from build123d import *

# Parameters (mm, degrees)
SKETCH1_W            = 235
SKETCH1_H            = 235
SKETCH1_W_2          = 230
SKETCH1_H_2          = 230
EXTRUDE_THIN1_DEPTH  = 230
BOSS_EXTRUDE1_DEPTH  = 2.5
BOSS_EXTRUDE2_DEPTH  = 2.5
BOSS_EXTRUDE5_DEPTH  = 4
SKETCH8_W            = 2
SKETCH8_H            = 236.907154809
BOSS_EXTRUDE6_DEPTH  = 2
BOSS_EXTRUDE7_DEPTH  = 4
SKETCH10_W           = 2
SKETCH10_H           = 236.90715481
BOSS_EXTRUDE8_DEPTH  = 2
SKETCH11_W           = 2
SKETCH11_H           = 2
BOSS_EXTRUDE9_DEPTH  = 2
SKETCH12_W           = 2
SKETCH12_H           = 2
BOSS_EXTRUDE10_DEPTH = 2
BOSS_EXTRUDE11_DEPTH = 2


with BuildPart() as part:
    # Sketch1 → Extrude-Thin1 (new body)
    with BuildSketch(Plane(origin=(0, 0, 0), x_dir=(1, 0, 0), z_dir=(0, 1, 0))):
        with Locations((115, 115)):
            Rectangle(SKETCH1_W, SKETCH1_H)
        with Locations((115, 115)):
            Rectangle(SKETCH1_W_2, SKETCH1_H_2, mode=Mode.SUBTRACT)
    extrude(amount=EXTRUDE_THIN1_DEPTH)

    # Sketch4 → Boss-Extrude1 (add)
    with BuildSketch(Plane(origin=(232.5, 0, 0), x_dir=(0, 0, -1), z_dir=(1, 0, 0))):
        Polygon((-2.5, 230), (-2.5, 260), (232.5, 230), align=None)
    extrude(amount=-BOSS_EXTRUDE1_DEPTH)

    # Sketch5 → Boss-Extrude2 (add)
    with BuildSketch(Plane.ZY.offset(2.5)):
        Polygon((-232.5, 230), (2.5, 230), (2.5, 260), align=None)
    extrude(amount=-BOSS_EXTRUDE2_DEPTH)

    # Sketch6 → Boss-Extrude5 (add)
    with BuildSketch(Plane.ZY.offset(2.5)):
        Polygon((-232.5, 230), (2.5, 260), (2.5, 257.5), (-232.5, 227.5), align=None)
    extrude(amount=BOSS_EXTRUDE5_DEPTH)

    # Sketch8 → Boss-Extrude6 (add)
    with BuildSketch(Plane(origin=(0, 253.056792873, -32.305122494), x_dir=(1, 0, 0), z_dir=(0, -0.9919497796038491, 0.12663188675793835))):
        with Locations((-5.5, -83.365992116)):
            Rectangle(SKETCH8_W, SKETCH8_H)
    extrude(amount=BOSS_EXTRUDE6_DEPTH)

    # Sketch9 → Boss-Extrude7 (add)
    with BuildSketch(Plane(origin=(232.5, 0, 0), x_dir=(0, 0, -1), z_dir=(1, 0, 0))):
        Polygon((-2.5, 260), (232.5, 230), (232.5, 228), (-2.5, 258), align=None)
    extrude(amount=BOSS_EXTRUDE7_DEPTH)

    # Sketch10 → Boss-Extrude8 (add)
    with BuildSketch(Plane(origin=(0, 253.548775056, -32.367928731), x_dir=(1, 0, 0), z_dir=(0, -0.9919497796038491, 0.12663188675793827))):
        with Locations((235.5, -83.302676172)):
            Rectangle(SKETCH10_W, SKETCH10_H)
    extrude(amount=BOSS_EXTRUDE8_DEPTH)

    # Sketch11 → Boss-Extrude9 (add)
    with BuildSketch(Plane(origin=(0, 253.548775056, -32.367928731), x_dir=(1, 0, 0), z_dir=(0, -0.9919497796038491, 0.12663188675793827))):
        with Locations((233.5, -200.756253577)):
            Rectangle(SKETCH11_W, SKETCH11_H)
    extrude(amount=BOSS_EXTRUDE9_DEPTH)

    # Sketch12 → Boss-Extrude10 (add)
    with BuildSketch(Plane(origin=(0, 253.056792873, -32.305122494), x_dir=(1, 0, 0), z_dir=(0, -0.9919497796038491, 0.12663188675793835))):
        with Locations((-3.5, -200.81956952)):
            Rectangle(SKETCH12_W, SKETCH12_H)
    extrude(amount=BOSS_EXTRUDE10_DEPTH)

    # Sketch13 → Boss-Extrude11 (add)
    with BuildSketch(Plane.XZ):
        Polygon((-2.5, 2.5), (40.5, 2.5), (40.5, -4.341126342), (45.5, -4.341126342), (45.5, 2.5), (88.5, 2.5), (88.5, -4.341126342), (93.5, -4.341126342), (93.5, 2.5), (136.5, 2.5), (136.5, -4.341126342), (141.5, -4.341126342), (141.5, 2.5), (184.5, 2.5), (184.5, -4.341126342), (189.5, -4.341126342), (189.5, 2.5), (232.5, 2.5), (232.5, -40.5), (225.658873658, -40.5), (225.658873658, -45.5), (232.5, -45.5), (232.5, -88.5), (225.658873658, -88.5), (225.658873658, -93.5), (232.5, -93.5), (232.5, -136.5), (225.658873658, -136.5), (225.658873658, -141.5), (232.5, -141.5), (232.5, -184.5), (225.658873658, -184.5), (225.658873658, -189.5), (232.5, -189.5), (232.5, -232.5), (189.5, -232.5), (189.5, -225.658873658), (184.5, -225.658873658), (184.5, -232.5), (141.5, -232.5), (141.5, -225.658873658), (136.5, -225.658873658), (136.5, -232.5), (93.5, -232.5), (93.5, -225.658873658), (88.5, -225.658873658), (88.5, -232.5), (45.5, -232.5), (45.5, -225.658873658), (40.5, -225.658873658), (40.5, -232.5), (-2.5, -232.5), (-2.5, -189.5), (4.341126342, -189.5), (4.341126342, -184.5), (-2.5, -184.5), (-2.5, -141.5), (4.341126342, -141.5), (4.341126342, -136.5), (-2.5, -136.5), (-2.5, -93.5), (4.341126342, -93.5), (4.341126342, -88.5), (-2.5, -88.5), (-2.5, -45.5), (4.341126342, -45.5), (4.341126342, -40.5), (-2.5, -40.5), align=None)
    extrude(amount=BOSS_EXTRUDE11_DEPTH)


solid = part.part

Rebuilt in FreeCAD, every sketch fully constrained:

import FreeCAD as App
import Part
import Sketcher
from FreeCAD import Vector


def add_polygon(sketch, points):
    """Adds a closed chain of lines whose ends are joined by coincident constraints."""
    first, n = sketch.GeometryCount, len(points)
    for a, b in zip(points, points[1:] + points[:1]):
        sketch.addGeometry(Part.LineSegment(App.Vector(*a, 0), App.Vector(*b, 0)), False)
    for i in range(n):
        sketch.addConstraint(Sketcher.Constraint("Coincident", first + i, 2, first + (i + 1) % n, 1))

doc = App.newDocument("Part")
body = doc.addObject("PartDesign::Body", "Body")

# Sketch on XZ plane
sketch1 = body.newObject("Sketcher::SketchObject", "Sketch")
sketch1.AttachmentSupport = (doc.getObject("XZ_Plane"), [""])
sketch1.MapMode = "FlatFace"
add_polygon(sketch1, [(-2, -232), (-2, 2), (232, 2), (232, -232)])  # lines 0-3
add_polygon(sketch1, [(230, 0), (0, 0), (0, -230), (230, -230)])  # lines 4-7
sketch1.addConstraint(Sketcher.Constraint("Vertical", 0))
sketch1.addConstraint(Sketcher.Constraint("Horizontal", 1))
sketch1.addConstraint(Sketcher.Constraint("Vertical", 2))
sketch1.addConstraint(Sketcher.Constraint("Horizontal", 3))
sketch1.addConstraint(Sketcher.Constraint("Horizontal", 4))
sketch1.addConstraint(Sketcher.Constraint("Vertical", 5))
sketch1.addConstraint(Sketcher.Constraint("Horizontal", 6))
sketch1.addConstraint(Sketcher.Constraint("Vertical", 7))
sketch1.addConstraint(Sketcher.Constraint("Coincident", 4, 2, -1, 1))
sketch1.addConstraint(Sketcher.Constraint("Equal", 3, 0))
sketch1.addConstraint(Sketcher.Constraint("Equal", 6, 5))
sketch1.addConstraint(Sketcher.Constraint("DistanceX", 1, 1, 1, 2, 235.0))
sketch1.addConstraint(Sketcher.Constraint("DistanceX", 4, 2, 4, 1, 230.0))
sketch1.addConstraint(Sketcher.Constraint("DistanceX", 0, 2, -1, 1, 2.5))
sketch1.addConstraint(Sketcher.Constraint("DistanceY", -1, 1, 0, 2, 2.5))
pad1 = body.newObject("PartDesign::Pad", "Pad")
pad1.Profile = sketch1
pad1.Length = 230
pad1.Reversed = True

# Sketch on YZ plane
sketch2 = body.newObject("Sketcher::SketchObject", "Sketch001")
sketch2.AttachmentSupport = (doc.getObject("YZ_Plane"), [""])
sketch2.MapMode = "FlatFace"
sketch2.AttachmentOffset = App.Placement(Vector(0, 0, 232.5), App.Rotation())
add_polygon(sketch2, [(260, 2), (230, 2), (230, -232)])  # lines 0-2
sketch2.addConstraint(Sketcher.Constraint("Horizontal", 0))
sketch2.addConstraint(Sketcher.Constraint("Vertical", 1))
sketch2.addConstraint(Sketcher.Constraint("DistanceX", 0, 2, 0, 1, 30.0))
sketch2.addConstraint(Sketcher.Constraint("DistanceY", 1, 2, 1, 1, 235.0))
sketch2.addConstraint(Sketcher.Constraint("DistanceX", -1, 1, 0, 2, 230.0))
sketch2.addConstraint(Sketcher.Constraint("DistanceY", -1, 1, 0, 2, 2.5))
pad2 = body.newObject("PartDesign::Pad", "Pad001")
pad2.Profile = sketch2
pad2.Length = 2.5
pad2.Reversed = True

# Sketch on YZ plane
sketch3 = body.newObject("Sketcher::SketchObject", "Sketch002")
sketch3.AttachmentSupport = (doc.getObject("YZ_Plane"), [""])
sketch3.MapMode = "FlatFace"
sketch3.AttachmentOffset = App.Placement(Vector(0, 0, -2.5), App.Rotation())
add_polygon(sketch3, [(230, -232), (230, 2), (260, 2)])  # lines 0-2
sketch3.addConstraint(Sketcher.Constraint("Vertical", 0))
sketch3.addConstraint(Sketcher.Constraint("Horizontal", 1))
sketch3.addConstraint(Sketcher.Constraint("DistanceX", 1, 1, 1, 2, 30.0))
sketch3.addConstraint(Sketcher.Constraint("DistanceY", 0, 1, 0, 2, 235.0))
sketch3.addConstraint(Sketcher.Constraint("DistanceX", -1, 1, 0, 2, 230.0))
sketch3.addConstraint(Sketcher.Constraint("DistanceY", -1, 1, 0, 2, 2.5))
pad3 = body.newObject("PartDesign::Pad", "Pad002")
pad3.Profile = sketch3
pad3.Length = 2.5

# Sketch on YZ plane
sketch4 = body.newObject("Sketcher::SketchObject", "Sketch003")
sketch4.AttachmentSupport = (doc.getObject("YZ_Plane"), [""])
sketch4.MapMode = "FlatFace"
sketch4.AttachmentOffset = App.Placement(Vector(0, 0, -2.5), App.Rotation())
add_polygon(sketch4, [(260, 2.5), (230, -232.5), (227.5, -232.5), (257.5, 2.5)])  # lines 0-3
sketch4.addConstraint(Sketcher.Constraint("Horizontal", 1))
sketch4.addConstraint(Sketcher.Constraint("Horizontal", 3))
sketch4.addConstraint(Sketcher.Constraint("Parallel", 0, 2))
sketch4.addConstraint(Sketcher.Constraint("DistanceX", 1, 2, 1, 1, 2.5))
sketch4.addConstraint(Sketcher.Constraint("DistanceX", -1, 1, 0, 2, 230.0))
sketch4.addConstraint(Sketcher.Constraint("DistanceX", -1, 1, 3, 2, 260.0))
sketch4.addConstraint(Sketcher.Constraint("DistanceY", 0, 2, 2, 2, 235.0))
sketch4.addConstraint(Sketcher.Constraint("DistanceY", 0, 2, -1, 1, 232.5))
pad4 = body.newObject("PartDesign::Pad", "Pad003")
pad4.Profile = sketch4
pad4.Length = 4
pad4.Reversed = True

# Sketch on an angled plane
sketch5 = body.newObject("Sketcher::SketchObject", "Sketch004")
sketch5.Placement = App.Placement(Vector(0, 253.056793, -32.305122), App.Rotation(Vector(1, 0, 0), Vector(0, 0.126631887, 0.99194978), Vector(0, -0.99194978, 0.126631887), "ZXY"))
add_polygon(sketch5, [(-6.5, 35.1), (-6.5, -201.8), (-4.5, -201.8), (-4.5, 35.1)])  # lines 0-3
sketch5.addConstraint(Sketcher.Constraint("Vertical", 0))
sketch5.addConstraint(Sketcher.Constraint("Horizontal", 1))
sketch5.addConstraint(Sketcher.Constraint("Vertical", 2))
sketch5.addConstraint(Sketcher.Constraint("Horizontal", 3))
sketch5.addConstraint(Sketcher.Constraint("DistanceX", 1, 1, 1, 2, 2.0))
sketch5.addConstraint(Sketcher.Constraint("DistanceX", 0, 2, -1, 1, 6.5))
sketch5.addConstraint(Sketcher.Constraint("DistanceY", 0, 2, 0, 1, 236.907155))
sketch5.addConstraint(Sketcher.Constraint("DistanceY", 0, 2, -1, 1, 201.81957))
pad5 = body.newObject("PartDesign::Pad", "Pad004")
pad5.Profile = sketch5
pad5.Length = 2

# Sketch on YZ plane
sketch6 = body.newObject("Sketcher::SketchObject", "Sketch005")
sketch6.AttachmentSupport = (doc.getObject("YZ_Plane"), [""])
sketch6.MapMode = "FlatFace"
sketch6.AttachmentOffset = App.Placement(Vector(0, 0, 232.5), App.Rotation())
add_polygon(sketch6, [(230, -232.5), (260, 2.5), (258, 2.5), (228, -232.5)])  # lines 0-3
sketch6.addConstraint(Sketcher.Constraint("Horizontal", 1))
sketch6.addConstraint(Sketcher.Constraint("Horizontal", 3))
sketch6.addConstraint(Sketcher.Constraint("Parallel", 0, 2))
sketch6.addConstraint(Sketcher.Constraint("DistanceX", 1, 2, 1, 1, 2.0))
sketch6.addConstraint(Sketcher.Constraint("DistanceX", -1, 1, 0, 2, 260.0))
sketch6.addConstraint(Sketcher.Constraint("DistanceX", -1, 1, 2, 2, 228.0))
sketch6.addConstraint(Sketcher.Constraint("DistanceY", 2, 2, 1, 2, 235.0))
sketch6.addConstraint(Sketcher.Constraint("DistanceY", -1, 1, 0, 2, 2.5))
pad6 = body.newObject("PartDesign::Pad", "Pad005")
pad6.Profile = sketch6
pad6.Length = 4

# Sketch on an angled plane
sketch7 = body.newObject("Sketcher::SketchObject", "Sketch006")
sketch7.Placement = App.Placement(Vector(0, 253.548775, -32.367929), App.Rotation(Vector(1, 0, 0), Vector(0, 0.126631887, 0.99194978), Vector(0, -0.99194978, 0.126631887), "ZXY"))
add_polygon(sketch7, [(234.5, 35.2), (234.5, -201.8), (236.5, -201.8), (236.5, 35.2)])  # lines 0-3
sketch7.addConstraint(Sketcher.Constraint("Vertical", 0))
sketch7.addConstraint(Sketcher.Constraint("Horizontal", 1))
sketch7.addConstraint(Sketcher.Constraint("Vertical", 2))
sketch7.addConstraint(Sketcher.Constraint("Horizontal", 3))
sketch7.addConstraint(Sketcher.Constraint("DistanceX", 1, 1, 1, 2, 2.0))
sketch7.addConstraint(Sketcher.Constraint("DistanceX", -1, 1, 0, 2, 234.5))
sketch7.addConstraint(Sketcher.Constraint("DistanceY", -1, 1, 2, 2, 35.150901))
sketch7.addConstraint(Sketcher.Constraint("DistanceY", 0, 2, 0, 1, 236.907155))
pad7 = body.newObject("PartDesign::Pad", "Pad006")
pad7.Profile = sketch7
pad7.Length = 2

# Sketch on an angled plane
sketch8 = body.newObject("Sketcher::SketchObject", "Sketch007")
sketch8.Placement = App.Placement(Vector(0, 253.548775, -32.367929), App.Rotation(Vector(1, 0, 0), Vector(0, 0.126631887, 0.99194978), Vector(0, -0.99194978, 0.126631887), "ZXY"))
add_polygon(sketch8, [(232.5, -199.8), (232.5, -201.8), (234.5, -201.8), (234.5, -199.8)])  # lines 0-3
sketch8.addConstraint(Sketcher.Constraint("Vertical", 0))
sketch8.addConstraint(Sketcher.Constraint("Horizontal", 1))
sketch8.addConstraint(Sketcher.Constraint("Vertical", 2))
sketch8.addConstraint(Sketcher.Constraint("Horizontal", 3))
sketch8.addConstraint(Sketcher.Constraint("Equal", 3, 0))
sketch8.addConstraint(Sketcher.Constraint("DistanceX", 1, 1, 1, 2, 2.0))
sketch8.addConstraint(Sketcher.Constraint("DistanceX", -1, 1, 0, 2, 232.5))
sketch8.addConstraint(Sketcher.Constraint("DistanceY", 0, 2, -1, 1, 201.756254))
pad8 = body.newObject("PartDesign::Pad", "Pad007")
pad8.Profile = sketch8
pad8.Length = 2

# Sketch on an angled plane
sketch9 = body.newObject("Sketcher::SketchObject", "Sketch008")
sketch9.Placement = App.Placement(Vector(0, 253.056793, -32.305122), App.Rotation(Vector(1, 0, 0), Vector(0, 0.126631887, 0.99194978), Vector(0, -0.99194978, 0.126631887), "ZXY"))
add_polygon(sketch9, [(-4.5, -199.8), (-4.5, -201.8), (-2.5, -201.8), (-2.5, -199.8)])  # lines 0-3
sketch9.addConstraint(Sketcher.Constraint("Vertical", 0))
sketch9.addConstraint(Sketcher.Constraint("Horizontal", 1))
sketch9.addConstraint(Sketcher.Constraint("Vertical", 2))
sketch9.addConstraint(Sketcher.Constraint("Horizontal", 3))
sketch9.addConstraint(Sketcher.Constraint("Equal", 3, 0))
sketch9.addConstraint(Sketcher.Constraint("DistanceX", 1, 1, 1, 2, 2.0))
sketch9.addConstraint(Sketcher.Constraint("DistanceX", 0, 2, -1, 1, 4.5))
sketch9.addConstraint(Sketcher.Constraint("DistanceY", 0, 2, -1, 1, 201.81957))
pad9 = body.newObject("PartDesign::Pad", "Pad008")
pad9.Profile = sketch9
pad9.Length = 2

# Sketch on XZ plane
sketch10 = body.newObject("Sketcher::SketchObject", "Sketch009")
sketch10.AttachmentSupport = (doc.getObject("XZ_Plane"), [""])
sketch10.MapMode = "FlatFace"
add_polygon(sketch10, [(40, 2), (-2, 2), (-2, -40), (4, -40), (4, -46), (-2, -46), (-2, -88), (4, -88), (4, -94), (-2, -94), (-2, -136), (4, -136), (4, -142), (-2, -142), (-2, -184), (4, -184), (4, -190), (-2, -190), (-2, -232), (40, -232), (40, -226), (46, -226), (46, -232), (88, -232), (88, -226), (94, -226), (94, -232), (136, -232), (136, -226), (142, -226), (142, -232), (184, -232), (184, -226), (190, -226), (190, -232), (232, -232), (232, -190), (226, -190), (226, -184), (232, -184), (232, -142), (226, -142), (226, -136), (232, -136), (232, -94), (226, -94), (226, -88), (232, -88), (232, -46), (226, -46), (226, -40), (232, -40), (232, 2), (190, 2), (190, -4), (184, -4), (184, 2), (142, 2), (142, -4), (136, -4), (136, 2), (94, 2), (94, -4), (88, -4), (88, 2), (46, 2), (46, -4), (40, -4)])  # lines 0-67
sketch10.addConstraint(Sketcher.Constraint("Horizontal", 0))
sketch10.addConstraint(Sketcher.Constraint("Vertical", 1))
sketch10.addConstraint(Sketcher.Constraint("Horizontal", 2))
sketch10.addConstraint(Sketcher.Constraint("Vertical", 3))
sketch10.addConstraint(Sketcher.Constraint("Horizontal", 4))
sketch10.addConstraint(Sketcher.Constraint("Vertical", 5))
sketch10.addConstraint(Sketcher.Constraint("Horizontal", 6))
sketch10.addConstraint(Sketcher.Constraint("Vertical", 7))
sketch10.addConstraint(Sketcher.Constraint("Horizontal", 8))
sketch10.addConstraint(Sketcher.Constraint("Vertical", 9))
sketch10.addConstraint(Sketcher.Constraint("Horizontal", 10))
sketch10.addConstraint(Sketcher.Constraint("Vertical", 11))
sketch10.addConstraint(Sketcher.Constraint("Horizontal", 12))
sketch10.addConstraint(Sketcher.Constraint("Vertical", 13))
sketch10.addConstraint(Sketcher.Constraint("Horizontal", 14))
sketch10.addConstraint(Sketcher.Constraint("Vertical", 15))
sketch10.addConstraint(Sketcher.Constraint("Horizontal", 16))
sketch10.addConstraint(Sketcher.Constraint("Vertical", 17))
sketch10.addConstraint(Sketcher.Constraint("Horizontal", 18))
sketch10.addConstraint(Sketcher.Constraint("Vertical", 19))
sketch10.addConstraint(Sketcher.Constraint("Horizontal", 20))
sketch10.addConstraint(Sketcher.Constraint("Vertical", 21))
sketch10.addConstraint(Sketcher.Constraint("Horizontal", 22))
sketch10.addConstraint(Sketcher.Constraint("Vertical", 23))
sketch10.addConstraint(Sketcher.Constraint("Horizontal", 24))
sketch10.addConstraint(Sketcher.Constraint("Vertical", 25))
sketch10.addConstraint(Sketcher.Constraint("Horizontal", 26))
sketch10.addConstraint(Sketcher.Constraint("Vertical", 27))
sketch10.addConstraint(Sketcher.Constraint("Horizontal", 28))
sketch10.addConstraint(Sketcher.Constraint("Vertical", 29))
sketch10.addConstraint(Sketcher.Constraint("Horizontal", 30))
sketch10.addConstraint(Sketcher.Constraint("Vertical", 31))
sketch10.addConstraint(Sketcher.Constraint("Horizontal", 32))
sketch10.addConstraint(Sketcher.Constraint("Vertical", 33))
sketch10.addConstraint(Sketcher.Constraint("Horizontal", 34))
sketch10.addConstraint(Sketcher.Constraint("Vertical", 35))
sketch10.addConstraint(Sketcher.Constraint("Horizontal", 36))
sketch10.addConstraint(Sketcher.Constraint("Vertical", 37))
sketch10.addConstraint(Sketcher.Constraint("Horizontal", 38))
sketch10.addConstraint(Sketcher.Constraint("Vertical", 39))
sketch10.addConstraint(Sketcher.Constraint("Horizontal", 40))
sketch10.addConstraint(Sketcher.Constraint("Vertical", 41))
sketch10.addConstraint(Sketcher.Constraint("Horizontal", 42))
sketch10.addConstraint(Sketcher.Constraint("Vertical", 43))
sketch10.addConstraint(Sketcher.Constraint("Horizontal", 44))
sketch10.addConstraint(Sketcher.Constraint("Vertical", 45))
sketch10.addConstraint(Sketcher.Constraint("Horizontal", 46))
sketch10.addConstraint(Sketcher.Constraint("Vertical", 47))
sketch10.addConstraint(Sketcher.Constraint("Horizontal", 48))
sketch10.addConstraint(Sketcher.Constraint("Vertical", 49))
sketch10.addConstraint(Sketcher.Constraint("Horizontal", 50))
sketch10.addConstraint(Sketcher.Constraint("Vertical", 51))
sketch10.addConstraint(Sketcher.Constraint("Horizontal", 52))
sketch10.addConstraint(Sketcher.Constraint("Vertical", 53))
sketch10.addConstraint(Sketcher.Constraint("Horizontal", 54))
sketch10.addConstraint(Sketcher.Constraint("Vertical", 55))
sketch10.addConstraint(Sketcher.Constraint("Horizontal", 56))
sketch10.addConstraint(Sketcher.Constraint("Vertical", 57))
sketch10.addConstraint(Sketcher.Constraint("Horizontal", 58))
sketch10.addConstraint(Sketcher.Constraint("Vertical", 59))
sketch10.addConstraint(Sketcher.Constraint("Horizontal", 60))
sketch10.addConstraint(Sketcher.Constraint("Vertical", 61))
sketch10.addConstraint(Sketcher.Constraint("Horizontal", 62))
sketch10.addConstraint(Sketcher.Constraint("Vertical", 63))
sketch10.addConstraint(Sketcher.Constraint("Horizontal", 64))
sketch10.addConstraint(Sketcher.Constraint("Vertical", 65))
sketch10.addConstraint(Sketcher.Constraint("Horizontal", 66))
sketch10.addConstraint(Sketcher.Constraint("Vertical", 67))
sketch10.addConstraint(Sketcher.Constraint("Horizontal", 18, 2, 21, 2))
sketch10.addConstraint(Sketcher.Constraint("Horizontal", 20, 2, 23, 2))
sketch10.addConstraint(Sketcher.Constraint("Horizontal", 22, 2, 25, 2))
sketch10.addConstraint(Sketcher.Constraint("Horizontal", 24, 2, 27, 2))
sketch10.addConstraint(Sketcher.Constraint("Horizontal", 26, 2, 29, 2))
sketch10.addConstraint(Sketcher.Constraint("Horizontal", 28, 2, 31, 2))
sketch10.addConstraint(Sketcher.Constraint("Horizontal", 30, 2, 33, 2))
sketch10.addConstraint(Sketcher.Constraint("Horizontal", 16, 2, 35, 2))
sketch10.addConstraint(Sketcher.Constraint("Horizontal", 14, 2, 37, 2))
sketch10.addConstraint(Sketcher.Constraint("Horizontal", 12, 2, 39, 2))
sketch10.addConstraint(Sketcher.Constraint("Horizontal", 10, 2, 41, 2))
sketch10.addConstraint(Sketcher.Constraint("Horizontal", 8, 2, 43, 2))
sketch10.addConstraint(Sketcher.Constraint("Horizontal", 6, 2, 45, 2))
sketch10.addConstraint(Sketcher.Constraint("Horizontal", 4, 2, 47, 2))
sketch10.addConstraint(Sketcher.Constraint("Horizontal", 2, 2, 49, 2))
sketch10.addConstraint(Sketcher.Constraint("Horizontal", 0, 2, 51, 2))
sketch10.addConstraint(Sketcher.Constraint("Horizontal", 52, 2, 55, 2))
sketch10.addConstraint(Sketcher.Constraint("Horizontal", 54, 2, 57, 2))
sketch10.addConstraint(Sketcher.Constraint("Horizontal", 56, 2, 59, 2))
sketch10.addConstraint(Sketcher.Constraint("Horizontal", 58, 2, 61, 2))
sketch10.addConstraint(Sketcher.Constraint("Horizontal", 60, 2, 63, 2))
sketch10.addConstraint(Sketcher.Constraint("Horizontal", 62, 2, 65, 2))
sketch10.addConstraint(Sketcher.Constraint("Vertical", 1, 2, 4, 2))
sketch10.addConstraint(Sketcher.Constraint("Vertical", 3, 2, 6, 2))
sketch10.addConstraint(Sketcher.Constraint("Vertical", 5, 2, 8, 2))
sketch10.addConstraint(Sketcher.Constraint("Vertical", 7, 2, 10, 2))
sketch10.addConstraint(Sketcher.Constraint("Vertical", 9, 2, 12, 2))
sketch10.addConstraint(Sketcher.Constraint("Vertical", 11, 2, 14, 2))
sketch10.addConstraint(Sketcher.Constraint("Vertical", 13, 2, 16, 2))
sketch10.addConstraint(Sketcher.Constraint("Vertical", 35, 2, 38, 2))
sketch10.addConstraint(Sketcher.Constraint("Vertical", 37, 2, 40, 2))
sketch10.addConstraint(Sketcher.Constraint("Vertical", 39, 2, 42, 2))
sketch10.addConstraint(Sketcher.Constraint("Vertical", 41, 2, 44, 2))
sketch10.addConstraint(Sketcher.Constraint("Vertical", 43, 2, 46, 2))
sketch10.addConstraint(Sketcher.Constraint("Vertical", 45, 2, 48, 2))
sketch10.addConstraint(Sketcher.Constraint("Vertical", 47, 2, 50, 2))
sketch10.addConstraint(Sketcher.Constraint("Vertical", 33, 2, 52, 2))
sketch10.addConstraint(Sketcher.Constraint("Vertical", 31, 2, 54, 2))
sketch10.addConstraint(Sketcher.Constraint("Vertical", 29, 2, 56, 2))
sketch10.addConstraint(Sketcher.Constraint("Vertical", 27, 2, 58, 2))
sketch10.addConstraint(Sketcher.Constraint("Vertical", 25, 2, 60, 2))
sketch10.addConstraint(Sketcher.Constraint("Vertical", 23, 2, 62, 2))
sketch10.addConstraint(Sketcher.Constraint("Vertical", 21, 2, 64, 2))
sketch10.addConstraint(Sketcher.Constraint("Vertical", 19, 2, 66, 2))
sketch10.addConstraint(Sketcher.Constraint("Equal", 18, 22))
sketch10.addConstraint(Sketcher.Constraint("Equal", 20, 24))
sketch10.addConstraint(Sketcher.Constraint("Equal", 22, 26))
sketch10.addConstraint(Sketcher.Constraint("Equal", 24, 28))
sketch10.addConstraint(Sketcher.Constraint("Equal", 26, 30))
sketch10.addConstraint(Sketcher.Constraint("Equal", 28, 32))
sketch10.addConstraint(Sketcher.Constraint("Equal", 30, 34))
sketch10.addConstraint(Sketcher.Constraint("Equal", 16, 36))
sketch10.addConstraint(Sketcher.Constraint("Equal", 64, 1))
sketch10.addConstraint(Sketcher.Constraint("Equal", 66, 3))
sketch10.addConstraint(Sketcher.Constraint("Equal", 1, 5))
sketch10.addConstraint(Sketcher.Constraint("Equal", 3, 7))
sketch10.addConstraint(Sketcher.Constraint("Equal", 5, 9))
sketch10.addConstraint(Sketcher.Constraint("Equal", 7, 11))
sketch10.addConstraint(Sketcher.Constraint("Equal", 9, 13))
sketch10.addConstraint(Sketcher.Constraint("Equal", 11, 15))
sketch10.addConstraint(Sketcher.Constraint("Equal", 13, 17))
sketch10.addConstraint(Sketcher.Constraint("Equal", 50, 19))
sketch10.addConstraint(Sketcher.Constraint("Equal", 33, 53))
sketch10.addConstraint(Sketcher.Constraint("DistanceX", 0, 2, 0, 1, 43.0))
sketch10.addConstraint(Sketcher.Constraint("DistanceX", 20, 1, 20, 2, 5.0))
sketch10.addConstraint(Sketcher.Constraint("DistanceX", 0, 2, -1, 1, 2.5))
sketch10.addConstraint(Sketcher.Constraint("DistanceY", -1, 1, 0, 2, 2.5))
sketch10.addConstraint(Sketcher.Constraint("DistanceX", 2, 1, 2, 2, 6.841126))
pad10 = body.newObject("PartDesign::Pad", "Pad009")
pad10.Profile = sketch10
pad10.Length = 2

doc.recompute()
